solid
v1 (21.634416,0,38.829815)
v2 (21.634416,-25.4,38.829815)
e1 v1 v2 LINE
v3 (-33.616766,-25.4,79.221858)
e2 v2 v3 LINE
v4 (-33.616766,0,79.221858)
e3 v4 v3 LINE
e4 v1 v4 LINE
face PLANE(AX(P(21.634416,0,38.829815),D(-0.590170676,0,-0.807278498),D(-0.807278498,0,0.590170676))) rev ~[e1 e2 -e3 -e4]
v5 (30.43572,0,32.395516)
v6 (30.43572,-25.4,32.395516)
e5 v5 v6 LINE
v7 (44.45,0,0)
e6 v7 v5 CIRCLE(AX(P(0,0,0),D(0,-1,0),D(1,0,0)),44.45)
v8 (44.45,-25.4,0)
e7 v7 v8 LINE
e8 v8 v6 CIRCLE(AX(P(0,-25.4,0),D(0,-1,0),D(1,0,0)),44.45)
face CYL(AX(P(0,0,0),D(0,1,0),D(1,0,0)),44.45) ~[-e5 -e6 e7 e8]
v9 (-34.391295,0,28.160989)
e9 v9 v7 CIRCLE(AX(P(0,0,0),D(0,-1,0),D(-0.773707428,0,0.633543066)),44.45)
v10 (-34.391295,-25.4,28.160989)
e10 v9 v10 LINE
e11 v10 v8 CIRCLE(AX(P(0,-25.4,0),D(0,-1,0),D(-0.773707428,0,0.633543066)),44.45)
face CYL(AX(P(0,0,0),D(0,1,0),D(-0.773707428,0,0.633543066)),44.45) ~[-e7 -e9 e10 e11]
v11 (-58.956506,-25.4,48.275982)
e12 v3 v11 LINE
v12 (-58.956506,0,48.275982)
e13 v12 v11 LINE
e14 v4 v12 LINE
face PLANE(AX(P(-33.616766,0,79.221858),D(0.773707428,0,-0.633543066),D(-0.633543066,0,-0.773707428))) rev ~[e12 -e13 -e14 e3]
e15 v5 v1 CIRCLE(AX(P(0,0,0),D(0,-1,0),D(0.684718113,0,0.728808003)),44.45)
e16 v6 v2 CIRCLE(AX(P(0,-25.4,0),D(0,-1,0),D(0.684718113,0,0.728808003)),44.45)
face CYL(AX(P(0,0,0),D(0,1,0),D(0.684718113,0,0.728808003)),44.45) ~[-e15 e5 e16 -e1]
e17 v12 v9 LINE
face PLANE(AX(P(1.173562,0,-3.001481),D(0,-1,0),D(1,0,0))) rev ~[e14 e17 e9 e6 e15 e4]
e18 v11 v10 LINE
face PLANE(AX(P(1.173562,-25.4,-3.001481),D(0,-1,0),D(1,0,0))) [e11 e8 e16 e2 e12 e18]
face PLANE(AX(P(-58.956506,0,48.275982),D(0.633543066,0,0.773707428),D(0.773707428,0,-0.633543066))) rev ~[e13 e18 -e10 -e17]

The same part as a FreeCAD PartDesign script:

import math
import FreeCAD as App
import Part
import Sketcher

V = App.Vector
Q = App.Units.Quantity

doc = App.newDocument("Part")
params = doc.addObject("Spreadsheet::Sheet", "Params")
for row, (alias, value) in enumerate([
    ("sketch1_radius", "1.75 in"),
    ("sketch1_length", "1.25 in"),
    ("pad1_length", "1 in"),
], start=1):
    params.set(f"A{row}", alias)
    params.set(f"B{row}", "=" + value)
    params.setAlias(f"B{row}", alias)

body = doc.addObject("PartDesign::Body", "Body")

sketch1 = body.newObject("Sketcher::SketchObject", "Sketch")
sketch1.AttachmentSupport = (doc.getObject("XZ_Plane"), [""])
sketch1.MapMode = "FlatFace"
sketch1.addGeometry([
    Part.ArcOfCircle(Part.Circle(V(0, 0, 0), V(0, 0, 1), 44), math.radians(141), math.radians(360)),
    Part.ArcOfCircle(Part.Circle(V(0, 0, 0), V(0, 0, 1), 44), math.radians(0), math.radians(47)),
    Part.ArcOfCircle(Part.Circle(V(0, 0, 0), V(0, 0, 1), 44), math.radians(46.79), math.radians(60.88)),
    Part.LineSegment(V(22, 39, 0), V(-34, 79, 0)),
    Part.LineSegment(V(-34, 79, 0), V(-59, 48, 0)),
    Part.LineSegment(V(-59, 48, 0), V(-34, 28, 0)),
], False)
sketch1.addConstraint([
    Sketcher.Constraint("Tangent", 0, 2, 1, 1),
    Sketcher.Constraint("Tangent", 1, 2, 2, 1),
    Sketcher.Constraint("Coincident", 2, 2, 3, 1),
    Sketcher.Constraint("Coincident", 3, 2, 4, 1),
    Sketcher.Constraint("Coincident", 4, 2, 5, 1),
    Sketcher.Constraint("Coincident", 5, 2, 0, 1),
    Sketcher.Constraint("Coincident", 0, 3, -1, 1),
    Sketcher.Constraint("Coincident", 2, 3, -1, 1),
    Sketcher.Constraint("PointOnObject", 0, 2, -1),
    Sketcher.Constraint("Perpendicular", 4, 5),
    Sketcher.Constraint("Radius", 0, Q("1.75 in")),
    Sketcher.Constraint("Distance", 5, Q("1.25 in")),
    Sketcher.Constraint("DistanceY", 1, 2, 2, 2, Q("6.434299 mm")),
    Sketcher.Constraint("Distance", 3, Q("68.44129 mm")),
    Sketcher.Constraint("Distance", 4, Q("39.996871 mm")),
    Sketcher.Constraint("DistanceX", -1, 1, 1, 2, Q("30.43572 mm")),
    Sketcher.Constraint("DistanceY", -1, 1, 4, 2, Q("48.275982 mm")),
])
sketch1.setExpression("Constraints[10]", "Params.sketch1_radius")
sketch1.setExpression("Constraints[11]", "Params.sketch1_length")
pad1 = body.newObject("PartDesign::Pad", "Pad")
pad1.Profile = sketch1
pad1.setExpression("Length", "Params.pad1_length")

doc.recompute()
